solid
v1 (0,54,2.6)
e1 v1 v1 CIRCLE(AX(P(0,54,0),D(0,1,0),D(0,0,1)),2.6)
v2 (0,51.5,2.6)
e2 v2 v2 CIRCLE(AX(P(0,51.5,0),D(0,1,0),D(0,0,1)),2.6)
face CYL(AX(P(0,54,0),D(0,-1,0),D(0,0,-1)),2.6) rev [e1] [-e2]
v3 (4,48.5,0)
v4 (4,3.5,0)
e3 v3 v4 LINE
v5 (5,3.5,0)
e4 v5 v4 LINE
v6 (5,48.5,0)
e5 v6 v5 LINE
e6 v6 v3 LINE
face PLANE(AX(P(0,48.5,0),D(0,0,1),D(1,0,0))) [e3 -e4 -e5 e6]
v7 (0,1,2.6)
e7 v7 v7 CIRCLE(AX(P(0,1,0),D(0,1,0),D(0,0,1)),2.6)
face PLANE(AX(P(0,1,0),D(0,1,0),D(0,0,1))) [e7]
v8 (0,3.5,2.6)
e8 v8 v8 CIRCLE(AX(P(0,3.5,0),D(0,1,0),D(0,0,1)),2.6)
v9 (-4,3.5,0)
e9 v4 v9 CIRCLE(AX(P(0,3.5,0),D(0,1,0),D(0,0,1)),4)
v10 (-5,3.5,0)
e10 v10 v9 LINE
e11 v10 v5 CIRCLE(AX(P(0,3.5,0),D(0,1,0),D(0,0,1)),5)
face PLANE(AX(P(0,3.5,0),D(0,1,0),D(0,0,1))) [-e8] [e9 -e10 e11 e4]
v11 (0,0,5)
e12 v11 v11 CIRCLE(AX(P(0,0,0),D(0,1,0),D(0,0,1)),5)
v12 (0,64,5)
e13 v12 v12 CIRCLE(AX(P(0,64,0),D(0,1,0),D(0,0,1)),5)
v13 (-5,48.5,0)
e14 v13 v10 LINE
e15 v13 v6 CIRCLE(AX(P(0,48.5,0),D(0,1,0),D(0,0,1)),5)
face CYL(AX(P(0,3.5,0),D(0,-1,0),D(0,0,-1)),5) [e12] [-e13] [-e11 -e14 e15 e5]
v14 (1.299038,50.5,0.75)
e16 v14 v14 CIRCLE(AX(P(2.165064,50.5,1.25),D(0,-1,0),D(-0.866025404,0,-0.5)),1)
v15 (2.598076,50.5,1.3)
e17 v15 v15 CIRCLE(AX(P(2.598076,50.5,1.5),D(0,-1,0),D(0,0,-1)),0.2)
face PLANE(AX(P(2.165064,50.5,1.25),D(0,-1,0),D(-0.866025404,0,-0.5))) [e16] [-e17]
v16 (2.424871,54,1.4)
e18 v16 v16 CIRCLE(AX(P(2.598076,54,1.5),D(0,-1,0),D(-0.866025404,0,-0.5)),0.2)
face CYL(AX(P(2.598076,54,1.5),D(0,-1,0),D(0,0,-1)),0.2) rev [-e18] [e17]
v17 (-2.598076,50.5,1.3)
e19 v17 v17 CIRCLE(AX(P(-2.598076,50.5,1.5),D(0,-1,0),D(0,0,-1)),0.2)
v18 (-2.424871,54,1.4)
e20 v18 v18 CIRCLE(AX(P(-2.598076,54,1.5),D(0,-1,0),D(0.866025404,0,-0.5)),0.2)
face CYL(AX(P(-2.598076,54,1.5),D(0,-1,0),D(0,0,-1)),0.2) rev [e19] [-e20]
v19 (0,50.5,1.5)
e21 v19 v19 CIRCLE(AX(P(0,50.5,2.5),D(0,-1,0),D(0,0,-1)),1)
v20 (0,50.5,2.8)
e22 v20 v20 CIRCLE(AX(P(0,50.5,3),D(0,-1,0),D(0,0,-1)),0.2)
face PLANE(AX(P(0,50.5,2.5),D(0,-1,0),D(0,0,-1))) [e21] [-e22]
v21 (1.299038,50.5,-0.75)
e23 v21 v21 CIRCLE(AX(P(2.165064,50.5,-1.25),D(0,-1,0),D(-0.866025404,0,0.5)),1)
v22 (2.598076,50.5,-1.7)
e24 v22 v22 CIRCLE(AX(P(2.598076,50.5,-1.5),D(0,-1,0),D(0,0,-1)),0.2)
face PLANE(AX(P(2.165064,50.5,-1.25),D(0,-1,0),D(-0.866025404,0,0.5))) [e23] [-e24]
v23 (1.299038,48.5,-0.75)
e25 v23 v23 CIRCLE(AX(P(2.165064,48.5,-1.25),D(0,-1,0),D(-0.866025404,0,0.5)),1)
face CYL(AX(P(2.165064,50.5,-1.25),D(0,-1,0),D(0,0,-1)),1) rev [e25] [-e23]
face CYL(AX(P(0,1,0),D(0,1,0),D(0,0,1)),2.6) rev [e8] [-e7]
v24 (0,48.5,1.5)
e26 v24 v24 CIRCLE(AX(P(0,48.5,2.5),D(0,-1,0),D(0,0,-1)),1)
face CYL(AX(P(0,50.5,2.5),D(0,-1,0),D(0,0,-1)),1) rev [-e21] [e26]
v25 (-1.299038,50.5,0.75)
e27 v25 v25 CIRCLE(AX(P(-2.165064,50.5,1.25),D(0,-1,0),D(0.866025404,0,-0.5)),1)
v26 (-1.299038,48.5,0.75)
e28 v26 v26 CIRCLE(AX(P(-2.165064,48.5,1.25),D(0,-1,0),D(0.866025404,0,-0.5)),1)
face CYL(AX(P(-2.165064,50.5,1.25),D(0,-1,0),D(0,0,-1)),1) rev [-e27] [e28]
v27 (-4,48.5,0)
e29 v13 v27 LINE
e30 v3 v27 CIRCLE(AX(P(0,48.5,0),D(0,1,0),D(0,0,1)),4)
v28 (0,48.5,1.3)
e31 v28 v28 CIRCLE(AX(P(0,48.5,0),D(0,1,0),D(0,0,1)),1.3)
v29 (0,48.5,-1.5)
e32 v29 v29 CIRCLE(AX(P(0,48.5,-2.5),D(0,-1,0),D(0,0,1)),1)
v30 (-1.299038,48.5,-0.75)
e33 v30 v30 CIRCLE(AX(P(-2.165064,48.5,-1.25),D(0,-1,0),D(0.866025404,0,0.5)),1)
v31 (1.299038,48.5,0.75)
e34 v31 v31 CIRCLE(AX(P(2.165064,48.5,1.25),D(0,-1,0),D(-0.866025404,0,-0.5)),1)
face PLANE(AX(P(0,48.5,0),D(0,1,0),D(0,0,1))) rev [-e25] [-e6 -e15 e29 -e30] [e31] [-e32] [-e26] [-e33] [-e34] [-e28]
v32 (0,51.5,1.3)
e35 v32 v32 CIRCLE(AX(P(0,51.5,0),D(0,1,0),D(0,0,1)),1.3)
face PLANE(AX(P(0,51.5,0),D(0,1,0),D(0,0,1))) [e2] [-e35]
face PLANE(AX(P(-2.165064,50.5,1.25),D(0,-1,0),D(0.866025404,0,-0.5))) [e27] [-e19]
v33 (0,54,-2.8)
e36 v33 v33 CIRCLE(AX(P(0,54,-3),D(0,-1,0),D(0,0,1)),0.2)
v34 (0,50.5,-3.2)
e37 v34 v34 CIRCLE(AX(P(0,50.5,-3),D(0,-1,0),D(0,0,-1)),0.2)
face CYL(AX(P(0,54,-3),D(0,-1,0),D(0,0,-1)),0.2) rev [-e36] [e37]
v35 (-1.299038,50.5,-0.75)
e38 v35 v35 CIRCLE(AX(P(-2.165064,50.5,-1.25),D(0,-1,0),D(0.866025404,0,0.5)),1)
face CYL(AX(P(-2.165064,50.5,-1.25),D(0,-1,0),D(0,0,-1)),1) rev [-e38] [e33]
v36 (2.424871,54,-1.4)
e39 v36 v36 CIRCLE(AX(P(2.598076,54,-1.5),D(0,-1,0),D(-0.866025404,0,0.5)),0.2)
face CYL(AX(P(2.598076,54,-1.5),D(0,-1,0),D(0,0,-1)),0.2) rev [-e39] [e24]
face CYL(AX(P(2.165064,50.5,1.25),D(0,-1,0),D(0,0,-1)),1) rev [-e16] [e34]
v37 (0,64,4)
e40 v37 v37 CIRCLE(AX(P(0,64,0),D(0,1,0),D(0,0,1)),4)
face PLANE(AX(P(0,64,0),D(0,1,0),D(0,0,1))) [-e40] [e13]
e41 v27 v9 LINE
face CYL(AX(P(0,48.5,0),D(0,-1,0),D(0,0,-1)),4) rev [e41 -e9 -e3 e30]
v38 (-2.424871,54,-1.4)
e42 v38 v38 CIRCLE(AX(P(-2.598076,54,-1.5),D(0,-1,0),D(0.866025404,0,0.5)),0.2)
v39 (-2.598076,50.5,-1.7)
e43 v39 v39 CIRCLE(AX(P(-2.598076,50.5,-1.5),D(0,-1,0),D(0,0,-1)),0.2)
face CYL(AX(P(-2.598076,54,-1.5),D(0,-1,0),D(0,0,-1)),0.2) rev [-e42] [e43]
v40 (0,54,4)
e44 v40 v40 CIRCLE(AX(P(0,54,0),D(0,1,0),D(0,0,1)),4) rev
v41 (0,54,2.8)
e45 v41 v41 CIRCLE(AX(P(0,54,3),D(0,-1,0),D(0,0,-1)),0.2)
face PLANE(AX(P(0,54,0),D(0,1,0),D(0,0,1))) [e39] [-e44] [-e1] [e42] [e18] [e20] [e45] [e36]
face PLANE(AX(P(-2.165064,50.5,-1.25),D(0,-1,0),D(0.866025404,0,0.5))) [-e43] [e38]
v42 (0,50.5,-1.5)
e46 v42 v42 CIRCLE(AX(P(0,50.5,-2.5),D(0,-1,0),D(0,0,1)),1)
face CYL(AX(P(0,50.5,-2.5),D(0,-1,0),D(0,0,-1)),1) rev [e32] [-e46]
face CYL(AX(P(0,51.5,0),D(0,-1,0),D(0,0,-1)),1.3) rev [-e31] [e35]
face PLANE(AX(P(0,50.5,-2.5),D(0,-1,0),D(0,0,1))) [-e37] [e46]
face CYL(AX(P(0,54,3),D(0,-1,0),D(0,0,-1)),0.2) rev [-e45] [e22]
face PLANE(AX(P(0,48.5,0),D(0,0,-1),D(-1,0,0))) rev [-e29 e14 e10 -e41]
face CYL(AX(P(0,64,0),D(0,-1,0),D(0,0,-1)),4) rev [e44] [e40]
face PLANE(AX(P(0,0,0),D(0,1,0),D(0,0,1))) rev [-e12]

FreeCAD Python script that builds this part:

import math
import FreeCAD as App
import Part
import Sketcher

V = App.Vector
Q = App.Units.Quantity

doc = App.newDocument("Part")
body = doc.addObject("PartDesign::Body", "Body")

# Sketch on XZ plane
sketch1 = body.newObject("Sketcher::SketchObject", "Sketch")
sketch1.AttachmentSupport = (doc.getObject("XZ_Plane"), [""])
sketch1.MapMode = "FlatFace"
sketch1.addGeometry(Part.Circle(V(0, 0, 0), V(0, 0, 1), 5), False)
sketch1.addConstraint(Sketcher.Constraint("Coincident", 0, 3, -1, 1))
sketch1.addConstraint(Sketcher.Constraint("Diameter", 0, Q("10 mm")))
pad1 = body.newObject("PartDesign::Pad", "Pad")
pad1.Profile = sketch1
pad1.Length = 3.5
pad1.Reversed = True

# Sketch on XZ plane
sketch2 = body.newObject("Sketcher::SketchObject", "Sketch001")
sketch2.AttachmentSupport = (doc.getObject("XZ_Plane"), [""])
sketch2.MapMode = "FlatFace"
sketch2.AttachmentOffset = App.Placement(V(0, 0, -3.5), App.Rotation())
sketch2.addGeometry(Part.Circle(V(0, 0, 0), V(0, 0, 1), 2.6), False)
sketch2.addConstraint(Sketcher.Constraint("Coincident", 0, 3, -1, 1))
sketch2.addConstraint(Sketcher.Constraint("Diameter", 0, Q("5.2 mm")))
pocket1 = body.newObject("PartDesign::Pocket", "Pocket")
pocket1.Profile = sketch2
pocket1.Length = 2.5
pocket1.Reversed = True

# Sketch on XZ plane
sketch3 = body.newObject("Sketcher::SketchObject", "Sketch002")
sketch3.AttachmentSupport = (doc.getObject("XZ_Plane"), [""])
sketch3.MapMode = "FlatFace"
sketch3.AttachmentOffset = App.Placement(V(0, 0, -3.5), App.Rotation())
sketch3.addGeometry(Part.LineSegment(V(4, 0, 0), V(5, 0, 0)), False)
sketch3.addGeometry(Part.ArcOfCircle(Part.Circle(V(0, 0, 0), V(0, 0, 1), 5), math.radians(180), math.radians(360)), False)
sketch3.addGeometry(Part.LineSegment(V(-5, 0, 0), V(-4, 0, 0)), False)
sketch3.addGeometry(Part.ArcOfCircle(Part.Circle(V(0, 0, 0), V(0, 0, 1), 4), math.radians(180), math.radians(360)), False)
sketch3.addConstraint(Sketcher.Constraint("Coincident", 0, 2, 1, 2))
sketch3.addConstraint(Sketcher.Constraint("Coincident", 1, 1, 2, 1))
sketch3.addConstraint(Sketcher.Constraint("Coincident", 2, 2, 3, 1))
sketch3.addConstraint(Sketcher.Constraint("Coincident", 3, 2, 0, 1))
sketch3.addConstraint(Sketcher.Constraint("Horizontal", 0))
sketch3.addConstraint(Sketcher.Constraint("Horizontal", 2))
sketch3.addConstraint(Sketcher.Constraint("Coincident", 1, 3, -1, 1))
sketch3.addConstraint(Sketcher.Constraint("Coincident", 3, 3, -1, 1))
sketch3.addConstraint(Sketcher.Constraint("PointOnObject", 0, 2, -1))
sketch3.addConstraint(Sketcher.Constraint("PointOnObject", 1, 1, -1))
sketch3.addConstraint(Sketcher.Constraint("Radius", 1, Q("5 mm")))
sketch3.addConstraint(Sketcher.Constraint("Radius", 3, Q("4 mm")))
pad2 = body.newObject("PartDesign::Pad", "Pad001")
pad2.Profile = sketch3
pad2.Length = 45
pad2.Reversed = True

# Sketch on XZ plane
sketch4 = body.newObject("Sketcher::SketchObject", "Sketch003")
sketch4.AttachmentSupport = (doc.getObject("XZ_Plane"), [""])
sketch4.MapMode = "FlatFace"
sketch4.AttachmentOffset = App.Placement(V(0, 0, -48.5), App.Rotation())
sketch4.addGeometry(Part.Circle(V(0, 0, 0), V(0, 0, 1), 5), False)
sketch4.addGeometry(Part.Circle(V(0, 0, 0), V(0, 0, 1), 1.3), False)
sketch4.addConstraint(Sketcher.Constraint("Coincident", 0, 3, -1, 1))
sketch4.addConstraint(Sketcher.Constraint("Coincident", 1, 3, -1, 1))
sketch4.addConstraint(Sketcher.Constraint("Diameter", 0, Q("10 mm")))
sketch4.addConstraint(Sketcher.Constraint("Diameter", 1, Q("2.6 mm")))
pad3 = body.newObject("PartDesign::Pad", "Pad002")
pad3.Profile = sketch4
pad3.Length = 3
pad3.Reversed = True

# Sketch on XZ plane
sketch5 = body.newObject("Sketcher::SketchObject", "Sketch004")
sketch5.AttachmentSupport = (doc.getObject("XZ_Plane"), [""])
sketch5.MapMode = "FlatFace"
sketch5.AttachmentOffset = App.Placement(V(0, 0, -48.5), App.Rotation())
sketch5.addGeometry(Part.Circle(V(0, 2.5, 0), V(0, 0, 1), 1), False)
sketch5.addConstraint(Sketcher.Constraint("PointOnObject", 0, 3, -2))
sketch5.addConstraint(Sketcher.Constraint("Diameter", 0, Q("2 mm")))
sketch5.addConstraint(Sketcher.Constraint("DistanceY", -1, 1, 0, 3, Q("2.5 mm")))
pocket2 = body.newObject("PartDesign::Pocket", "Pocket001")
pocket2.Profile = sketch5
pocket2.Length = 2
doc.recompute()

polarpattern = body.newObject("PartDesign::PolarPattern", "PolarPattern")
polarpattern.Originals = [pocket2]
polarpattern.Axis = (doc.getObject("Y_Axis"), [""])
polarpattern.Angle = 360
polarpattern.Occurrences = 6
body.Tip = polarpattern

# Sketch on XZ plane
sketch6 = body.newObject("Sketcher::SketchObject", "Sketch005")
sketch6.AttachmentSupport = (doc.getObject("XZ_Plane"), [""])
sketch6.MapMode = "FlatFace"
sketch6.AttachmentOffset = App.Placement(V(0, 0, -51.5), App.Rotation())
sketch6.addGeometry(Part.Circle(V(0, 0, 0), V(0, 0, 1), 5), False)
sketch6.addGeometry(Part.Circle(V(0, 0, 0), V(0, 0, 1), 2.6), False)
sketch6.addConstraint(Sketcher.Constraint("Coincident", 0, 3, -1, 1))
sketch6.addConstraint(Sketcher.Constraint("Coincident", 1, 3, -1, 1))
sketch6.addConstraint(Sketcher.Constraint("Diameter", 0, Q("10 mm")))
sketch6.addConstraint(Sketcher.Constraint("Diameter", 1, Q("5.2 mm")))
pad4 = body.newObject("PartDesign::Pad", "Pad003")
pad4.Profile = sketch6
pad4.Length = 2.5
pad4.Reversed = True

# Sketch on XZ plane
sketch7 = body.newObject("Sketcher::SketchObject", "Sketch006")
sketch7.AttachmentSupport = (doc.getObject("XZ_Plane"), [""])
sketch7.MapMode = "FlatFace"
sketch7.AttachmentOffset = App.Placement(V(0, 0, -48.5), App.Rotation())
sketch7.addGeometry(Part.Circle(V(0, 3, 0), V(0, 0, 1), 0.2), False)
sketch7.addConstraint(Sketcher.Constraint("PointOnObject", 0, 3, -2))
sketch7.addConstraint(Sketcher.Constraint("Diameter", 0, Q("0.4 mm")))
sketch7.addConstraint(Sketcher.Constraint("DistanceY", -1, 1, 0, 3, Q("3 mm")))
pocket3 = body.newObject("PartDesign::Pocket", "Pocket002")
pocket3.Profile = sketch7
pocket3.Type = "ThroughAll"
doc.recompute()

polarpattern2 = body.newObject("PartDesign::PolarPattern", "PolarPattern001")
polarpattern2.Originals = [pocket3]
polarpattern2.Axis = (doc.getObject("Y_Axis"), [""])
polarpattern2.Angle = 360
polarpattern2.Occurrences = 6
body.Tip = polarpattern2

# Sketch on XZ plane
sketch8 = body.newObject("Sketcher::SketchObject", "Sketch007")
sketch8.AttachmentSupport = (doc.getObject("XZ_Plane"), [""])
sketch8.MapMode = "FlatFace"
sketch8.AttachmentOffset = App.Placement(V(0, 0, -54), App.Rotation())
sketch8.addGeometry(Part.Circle(V(0, 0, 0), V(0, 0, 1), 5), False)
sketch8.addGeometry(Part.Circle(V(0, 0, 0), V(0, 0, 1), 4), False)
sketch8.addConstraint(Sketcher.Constraint("Coincident", 0, 3, -1, 1))
sketch8.addConstraint(Sketcher.Constraint("Coincident", 1, 3, -1, 1))
sketch8.addConstraint(Sketcher.Constraint("Diameter", 0, Q("10 mm")))
sketch8.addConstraint(Sketcher.Constraint("Diameter", 1, Q("8 mm")))
pad5 = body.newObject("PartDesign::Pad", "Pad004")
pad5.Profile = sketch8
pad5.Length = 10
pad5.Reversed = True

doc.recompute()
